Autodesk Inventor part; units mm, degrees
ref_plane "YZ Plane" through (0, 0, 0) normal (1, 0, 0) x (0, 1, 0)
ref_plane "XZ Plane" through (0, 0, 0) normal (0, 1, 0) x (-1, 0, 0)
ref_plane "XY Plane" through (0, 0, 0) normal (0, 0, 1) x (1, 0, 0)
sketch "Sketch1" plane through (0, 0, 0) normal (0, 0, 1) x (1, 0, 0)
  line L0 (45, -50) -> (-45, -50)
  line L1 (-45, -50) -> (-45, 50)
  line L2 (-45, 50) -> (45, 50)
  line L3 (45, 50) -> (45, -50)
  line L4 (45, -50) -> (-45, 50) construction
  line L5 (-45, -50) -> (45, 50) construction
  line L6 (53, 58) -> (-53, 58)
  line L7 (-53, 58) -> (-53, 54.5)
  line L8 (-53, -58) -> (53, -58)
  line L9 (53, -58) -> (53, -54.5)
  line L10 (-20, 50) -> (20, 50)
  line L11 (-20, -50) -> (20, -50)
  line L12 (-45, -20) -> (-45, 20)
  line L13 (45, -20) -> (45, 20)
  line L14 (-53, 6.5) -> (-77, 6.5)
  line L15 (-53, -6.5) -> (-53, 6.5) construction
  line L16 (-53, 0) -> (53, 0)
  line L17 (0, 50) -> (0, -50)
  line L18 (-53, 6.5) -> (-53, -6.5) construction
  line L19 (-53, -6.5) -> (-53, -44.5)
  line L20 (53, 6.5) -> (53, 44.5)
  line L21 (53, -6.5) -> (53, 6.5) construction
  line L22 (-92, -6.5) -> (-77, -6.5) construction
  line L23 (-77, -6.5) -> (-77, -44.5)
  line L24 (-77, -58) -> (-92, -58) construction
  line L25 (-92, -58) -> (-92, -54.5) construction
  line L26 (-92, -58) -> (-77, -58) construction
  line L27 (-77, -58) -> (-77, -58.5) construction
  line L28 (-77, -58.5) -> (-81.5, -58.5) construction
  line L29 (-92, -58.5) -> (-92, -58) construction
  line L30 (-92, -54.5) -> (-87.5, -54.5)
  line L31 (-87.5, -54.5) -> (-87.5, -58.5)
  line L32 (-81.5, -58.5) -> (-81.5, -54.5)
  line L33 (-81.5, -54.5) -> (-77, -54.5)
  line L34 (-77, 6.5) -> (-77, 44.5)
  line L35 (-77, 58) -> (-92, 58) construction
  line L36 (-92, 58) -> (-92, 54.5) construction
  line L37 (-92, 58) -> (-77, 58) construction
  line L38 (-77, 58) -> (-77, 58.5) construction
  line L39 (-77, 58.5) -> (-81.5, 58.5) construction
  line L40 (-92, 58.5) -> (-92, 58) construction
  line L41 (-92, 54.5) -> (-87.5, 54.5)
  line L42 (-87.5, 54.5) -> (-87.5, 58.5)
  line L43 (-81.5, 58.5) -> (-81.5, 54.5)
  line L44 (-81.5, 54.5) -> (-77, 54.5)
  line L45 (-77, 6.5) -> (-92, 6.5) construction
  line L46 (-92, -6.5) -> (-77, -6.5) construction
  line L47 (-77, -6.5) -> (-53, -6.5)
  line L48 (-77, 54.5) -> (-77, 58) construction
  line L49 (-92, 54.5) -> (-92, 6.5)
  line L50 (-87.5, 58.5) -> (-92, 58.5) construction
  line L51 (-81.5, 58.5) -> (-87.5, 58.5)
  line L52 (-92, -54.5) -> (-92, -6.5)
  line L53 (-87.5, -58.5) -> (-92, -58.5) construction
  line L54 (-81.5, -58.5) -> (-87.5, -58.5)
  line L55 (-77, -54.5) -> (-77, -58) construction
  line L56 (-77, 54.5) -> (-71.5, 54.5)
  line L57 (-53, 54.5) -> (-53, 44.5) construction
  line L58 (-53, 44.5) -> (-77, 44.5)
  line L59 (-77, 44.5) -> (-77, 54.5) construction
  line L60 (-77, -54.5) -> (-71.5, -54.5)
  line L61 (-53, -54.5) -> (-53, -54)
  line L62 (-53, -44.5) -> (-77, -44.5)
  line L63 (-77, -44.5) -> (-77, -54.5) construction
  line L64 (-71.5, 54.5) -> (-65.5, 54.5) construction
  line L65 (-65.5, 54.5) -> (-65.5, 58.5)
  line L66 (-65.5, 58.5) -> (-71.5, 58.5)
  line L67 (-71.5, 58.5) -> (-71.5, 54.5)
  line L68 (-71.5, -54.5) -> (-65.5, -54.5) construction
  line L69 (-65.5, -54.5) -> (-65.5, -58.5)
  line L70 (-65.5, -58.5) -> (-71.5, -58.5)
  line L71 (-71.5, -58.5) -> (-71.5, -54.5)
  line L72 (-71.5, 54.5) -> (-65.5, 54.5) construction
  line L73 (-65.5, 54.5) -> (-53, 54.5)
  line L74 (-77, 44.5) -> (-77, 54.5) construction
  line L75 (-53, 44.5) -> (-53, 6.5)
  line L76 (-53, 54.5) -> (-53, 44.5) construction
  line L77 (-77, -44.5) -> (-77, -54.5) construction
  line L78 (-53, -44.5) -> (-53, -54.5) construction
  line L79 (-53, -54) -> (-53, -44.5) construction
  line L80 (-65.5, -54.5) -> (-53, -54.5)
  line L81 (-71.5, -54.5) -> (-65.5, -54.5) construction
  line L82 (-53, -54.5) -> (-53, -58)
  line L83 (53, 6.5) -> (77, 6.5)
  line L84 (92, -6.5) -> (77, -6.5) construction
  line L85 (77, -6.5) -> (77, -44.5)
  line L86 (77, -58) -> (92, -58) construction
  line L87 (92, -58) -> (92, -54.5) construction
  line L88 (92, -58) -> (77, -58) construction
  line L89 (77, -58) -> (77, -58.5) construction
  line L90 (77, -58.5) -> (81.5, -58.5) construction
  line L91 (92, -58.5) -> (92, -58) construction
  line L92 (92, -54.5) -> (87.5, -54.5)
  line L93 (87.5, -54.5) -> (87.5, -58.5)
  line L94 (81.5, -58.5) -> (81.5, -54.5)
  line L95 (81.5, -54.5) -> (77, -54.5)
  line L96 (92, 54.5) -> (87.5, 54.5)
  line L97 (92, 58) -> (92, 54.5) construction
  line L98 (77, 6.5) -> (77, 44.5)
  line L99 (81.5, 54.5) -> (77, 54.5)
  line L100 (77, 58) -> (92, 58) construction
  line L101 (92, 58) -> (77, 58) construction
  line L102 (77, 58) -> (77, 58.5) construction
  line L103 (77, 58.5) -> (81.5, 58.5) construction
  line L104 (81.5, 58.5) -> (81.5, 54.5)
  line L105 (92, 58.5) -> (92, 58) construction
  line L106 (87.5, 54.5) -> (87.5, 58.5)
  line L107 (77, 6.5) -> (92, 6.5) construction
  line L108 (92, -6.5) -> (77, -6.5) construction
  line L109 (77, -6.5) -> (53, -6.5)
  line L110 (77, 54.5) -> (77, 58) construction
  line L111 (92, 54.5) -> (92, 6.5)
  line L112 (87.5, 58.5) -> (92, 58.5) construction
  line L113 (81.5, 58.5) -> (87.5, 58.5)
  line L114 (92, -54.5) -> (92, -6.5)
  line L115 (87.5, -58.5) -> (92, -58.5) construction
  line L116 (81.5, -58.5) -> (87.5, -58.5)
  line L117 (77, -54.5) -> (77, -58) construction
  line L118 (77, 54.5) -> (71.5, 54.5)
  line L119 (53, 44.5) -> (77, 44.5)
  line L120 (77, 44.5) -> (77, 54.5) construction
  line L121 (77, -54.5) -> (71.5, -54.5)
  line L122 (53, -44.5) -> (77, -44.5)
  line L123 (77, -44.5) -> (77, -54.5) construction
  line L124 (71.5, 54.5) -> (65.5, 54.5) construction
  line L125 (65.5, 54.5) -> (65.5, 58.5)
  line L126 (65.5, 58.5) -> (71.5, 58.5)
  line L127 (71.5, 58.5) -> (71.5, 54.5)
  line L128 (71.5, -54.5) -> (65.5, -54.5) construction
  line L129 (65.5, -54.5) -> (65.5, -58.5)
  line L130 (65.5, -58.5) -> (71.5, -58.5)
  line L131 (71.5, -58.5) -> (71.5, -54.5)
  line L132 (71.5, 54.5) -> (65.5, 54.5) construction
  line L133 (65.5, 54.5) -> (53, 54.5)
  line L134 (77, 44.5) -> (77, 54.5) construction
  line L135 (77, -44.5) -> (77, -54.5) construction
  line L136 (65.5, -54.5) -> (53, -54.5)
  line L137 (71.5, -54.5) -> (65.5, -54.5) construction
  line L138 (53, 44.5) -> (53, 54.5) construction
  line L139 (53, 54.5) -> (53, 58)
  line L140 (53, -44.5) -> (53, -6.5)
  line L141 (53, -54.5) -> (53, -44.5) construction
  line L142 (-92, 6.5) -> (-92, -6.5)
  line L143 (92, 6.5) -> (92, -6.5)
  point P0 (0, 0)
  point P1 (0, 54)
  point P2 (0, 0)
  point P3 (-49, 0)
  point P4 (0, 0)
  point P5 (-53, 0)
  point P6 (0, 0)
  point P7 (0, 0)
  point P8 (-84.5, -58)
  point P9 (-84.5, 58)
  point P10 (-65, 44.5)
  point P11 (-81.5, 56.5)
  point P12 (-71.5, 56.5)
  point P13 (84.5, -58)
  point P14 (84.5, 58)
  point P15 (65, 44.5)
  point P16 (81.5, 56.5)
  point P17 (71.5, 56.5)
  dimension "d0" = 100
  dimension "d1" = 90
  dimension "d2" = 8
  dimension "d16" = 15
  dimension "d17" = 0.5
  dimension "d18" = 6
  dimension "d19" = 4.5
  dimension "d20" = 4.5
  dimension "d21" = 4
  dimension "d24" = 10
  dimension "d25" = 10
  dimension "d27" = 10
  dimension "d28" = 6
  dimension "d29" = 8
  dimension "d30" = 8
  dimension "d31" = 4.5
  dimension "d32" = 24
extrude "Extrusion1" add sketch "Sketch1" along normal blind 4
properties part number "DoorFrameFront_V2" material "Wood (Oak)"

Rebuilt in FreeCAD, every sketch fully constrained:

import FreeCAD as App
import Part
import Sketcher

doc = App.newDocument("Part")
params = doc.addObject("Spreadsheet::Sheet", "Params")
for row, (alias, value) in enumerate([
    ("sketch1_width", "6 mm"),
    ("sketch1_width2", "10 mm"),
    ("sketch1_width3", "24 mm"),
    ("sketch1_width4", "90 mm"),
    ("sketch1_height", "4 mm"),
    ("pad1_length", "4 mm"),
], start=1):
    params.set(f"A{row}", alias)
    params.set(f"B{row}", "=" + value)
    params.setAlias(f"B{row}", alias)

body = doc.addObject("PartDesign::Body", "Body")

sketch1 = doc.addObject("Sketcher::SketchObject", "Sketch")
body.addObject(sketch1)
sketch1.AttachmentSupport = (doc.XY_Plane, [""])
sketch1.MapMode = "FlatFace"
sketch1.addGeometry(Part.LineSegment(App.Vector(53, 54.5, 0), App.Vector(53, 58, 0)), False)
sketch1.addGeometry(Part.LineSegment(App.Vector(53, 58, 0), App.Vector(-53, 58, 0)), False)
sketch1.addGeometry(Part.LineSegment(App.Vector(-53, 58, 0), App.Vector(-53, 54.5, 0)), False)
sketch1.addGeometry(Part.LineSegment(App.Vector(-53, 54.5, 0), App.Vector(-65.5, 54.5, 0)), False)
sketch1.addGeometry(Part.LineSegment(App.Vector(-65.5, 54.5, 0), App.Vector(-65.5, 58.5, 0)), False)
sketch1.addGeometry(Part.LineSegment(App.Vector(-65.5, 58.5, 0), App.Vector(-71.5, 58.5, 0)), False)
sketch1.addGeometry(Part.LineSegment(App.Vector(-71.5, 58.5, 0), App.Vector(-71.5, 54.5, 0)), False)
sketch1.addGeometry(Part.LineSegment(App.Vector(-71.5, 54.5, 0), App.Vector(-81.5, 54.5, 0)), False)
sketch1.addGeometry(Part.LineSegment(App.Vector(-81.5, 54.5, 0), App.Vector(-81.5, 58.5, 0)), False)
sketch1.addGeometry(Part.LineSegment(App.Vector(-81.5, 58.5, 0), App.Vector(-87.5, 58.5, 0)), False)
sketch1.addGeometry(Part.LineSegment(App.Vector(-87.5, 58.5, 0), App.Vector(-87.5, 54.5, 0)), False)
sketch1.addGeometry(Part.LineSegment(App.Vector(-87.5, 54.5, 0), App.Vector(-92, 54.5, 0)), False)
sketch1.addGeometry(Part.LineSegment(App.Vector(-92, 54.5, 0), App.Vector(-92, -54.5, 0)), False)
sketch1.addGeometry(Part.LineSegment(App.Vector(-92, -54.5, 0), App.Vector(-87.5, -54.5, 0)), False)
sketch1.addGeometry(Part.LineSegment(App.Vector(-87.5, -54.5, 0), App.Vector(-87.5, -58.5, 0)), False)
sketch1.addGeometry(Part.LineSegment(App.Vector(-87.5, -58.5, 0), App.Vector(-81.5, -58.5, 0)), False)
sketch1.addGeometry(Part.LineSegment(App.Vector(-81.5, -58.5, 0), App.Vector(-81.5, -54.5, 0)), False)
sketch1.addGeometry(Part.LineSegment(App.Vector(-81.5, -54.5, 0), App.Vector(-71.5, -54.5, 0)), False)
sketch1.addGeometry(Part.LineSegment(App.Vector(-71.5, -54.5, 0), App.Vector(-71.5, -58.5, 0)), False)
sketch1.addGeometry(Part.LineSegment(App.Vector(-71.5, -58.5, 0), App.Vector(-65.5, -58.5, 0)), False)
sketch1.addGeometry(Part.LineSegment(App.Vector(-65.5, -58.5, 0), App.Vector(-65.5, -54.5, 0)), False)
sketch1.addGeometry(Part.LineSegment(App.Vector(-65.5, -54.5, 0), App.Vector(-53, -54.5, 0)), False)
sketch1.addGeometry(Part.LineSegment(App.Vector(-53, -54.5, 0), App.Vector(-53, -58, 0)), False)
sketch1.addGeometry(Part.LineSegment(App.Vector(-53, -58, 0), App.Vector(53, -58, 0)), False)
sketch1.addGeometry(Part.LineSegment(App.Vector(53, -58, 0), App.Vector(53, -54.5, 0)), False)
sketch1.addGeometry(Part.LineSegment(App.Vector(53, -54.5, 0), App.Vector(65.5, -54.5, 0)), False)
sketch1.addGeometry(Part.LineSegment(App.Vector(65.5, -54.5, 0), App.Vector(65.5, -58.5, 0)), False)
sketch1.addGeometry(Part.LineSegment(App.Vector(65.5, -58.5, 0), App.Vector(71.5, -58.5, 0)), False)
sketch1.addGeometry(Part.LineSegment(App.Vector(71.5, -58.5, 0), App.Vector(71.5, -54.5, 0)), False)
sketch1.addGeometry(Part.LineSegment(App.Vector(71.5, -54.5, 0), App.Vector(81.5, -54.5, 0)), False)
sketch1.addGeometry(Part.LineSegment(App.Vector(81.5, -54.5, 0), App.Vector(81.5, -58.5, 0)), False)
sketch1.addGeometry(Part.LineSegment(App.Vector(81.5, -58.5, 0), App.Vector(87.5, -58.5, 0)), False)
sketch1.addGeometry(Part.LineSegment(App.Vector(87.5, -58.5, 0), App.Vector(87.5, -54.5, 0)), False)
sketch1.addGeometry(Part.LineSegment(App.Vector(87.5, -54.5, 0), App.Vector(92, -54.5, 0)), False)
sketch1.addGeometry(Part.LineSegment(App.Vector(92, -54.5, 0), App.Vector(92, 54.5, 0)), False)
sketch1.addGeometry(Part.LineSegment(App.Vector(92, 54.5, 0), App.Vector(87.5, 54.5, 0)), False)
sketch1.addGeometry(Part.LineSegment(App.Vector(87.5, 54.5, 0), App.Vector(87.5, 58.5, 0)), False)
sketch1.addGeometry(Part.LineSegment(App.Vector(87.5, 58.5, 0), App.Vector(81.5, 58.5, 0)), False)
sketch1.addGeometry(Part.LineSegment(App.Vector(81.5, 58.5, 0), App.Vector(81.5, 54.5, 0)), False)
sketch1.addGeometry(Part.LineSegment(App.Vector(81.5, 54.5, 0), App.Vector(71.5, 54.5, 0)), False)
sketch1.addGeometry(Part.LineSegment(App.Vector(71.5, 54.5, 0), App.Vector(71.5, 58.5, 0)), False)
sketch1.addGeometry(Part.LineSegment(App.Vector(71.5, 58.5, 0), App.Vector(65.5, 58.5, 0)), False)
sketch1.addGeometry(Part.LineSegment(App.Vector(65.5, 58.5, 0), App.Vector(65.5, 54.5, 0)), False)
sketch1.addGeometry(Part.LineSegment(App.Vector(65.5, 54.5, 0), App.Vector(53, 54.5, 0)), False)
sketch1.addGeometry(Part.LineSegment(App.Vector(-77, -6.5, 0), App.Vector(-53, -6.5, 0)), False)
sketch1.addGeometry(Part.LineSegment(App.Vector(-53, -6.5, 0), App.Vector(-53, -44.5, 0)), False)
sketch1.addGeometry(Part.LineSegment(App.Vector(-53, -44.5, 0), App.Vector(-77, -44.5, 0)), False)
sketch1.addGeometry(Part.LineSegment(App.Vector(-77, -44.5, 0), App.Vector(-77, -6.5, 0)), False)
sketch1.addGeometry(Part.LineSegment(App.Vector(53, -6.5, 0), App.Vector(77, -6.5, 0)), False)
sketch1.addGeometry(Part.LineSegment(App.Vector(77, -6.5, 0), App.Vector(77, -44.5, 0)), False)
sketch1.addGeometry(Part.LineSegment(App.Vector(77, -44.5, 0), App.Vector(53, -44.5, 0)), False)
sketch1.addGeometry(Part.LineSegment(App.Vector(53, -44.5, 0), App.Vector(53, -6.5, 0)), False)
sketch1.addGeometry(Part.LineSegment(App.Vector(-53, 44.5, 0), App.Vector(-53, 6.5, 0)), False)
sketch1.addGeometry(Part.LineSegment(App.Vector(-53, 6.5, 0), App.Vector(-77, 6.5, 0)), False)
sketch1.addGeometry(Part.LineSegment(App.Vector(-77, 6.5, 0), App.Vector(-77, 44.5, 0)), False)
sketch1.addGeometry(Part.LineSegment(App.Vector(-77, 44.5, 0), App.Vector(-53, 44.5, 0)), False)
sketch1.addGeometry(Part.LineSegment(App.Vector(45, 50, 0), App.Vector(45, -50, 0)), False)
sketch1.addGeometry(Part.LineSegment(App.Vector(45, -50, 0), App.Vector(-45, -50, 0)), False)
sketch1.addGeometry(Part.LineSegment(App.Vector(-45, -50, 0), App.Vector(-45, 50, 0)), False)
sketch1.addGeometry(Part.LineSegment(App.Vector(-45, 50, 0), App.Vector(45, 50, 0)), False)
sketch1.addGeometry(Part.LineSegment(App.Vector(77, 6.5, 0), App.Vector(53, 6.5, 0)), False)
sketch1.addGeometry(Part.LineSegment(App.Vector(53, 6.5, 0), App.Vector(53, 44.5, 0)), False)
sketch1.addGeometry(Part.LineSegment(App.Vector(53, 44.5, 0), App.Vector(77, 44.5, 0)), False)
sketch1.addGeometry(Part.LineSegment(App.Vector(77, 44.5, 0), App.Vector(77, 6.5, 0)), False)
sketch1.addConstraint(Sketcher.Constraint("Coincident", 0, 2, 1, 1))
sketch1.addConstraint(Sketcher.Constraint("Coincident", 1, 2, 2, 1))
sketch1.addConstraint(Sketcher.Constraint("Coincident", 2, 2, 3, 1))
sketch1.addConstraint(Sketcher.Constraint("Coincident", 3, 2, 4, 1))
sketch1.addConstraint(Sketcher.Constraint("Coincident", 4, 2, 5, 1))
sketch1.addConstraint(Sketcher.Constraint("Coincident", 5, 2, 6, 1))
sketch1.addConstraint(Sketcher.Constraint("Coincident", 6, 2, 7, 1))
sketch1.addConstraint(Sketcher.Constraint("Coincident", 7, 2, 8, 1))
sketch1.addConstraint(Sketcher.Constraint("Coincident", 8, 2, 9, 1))
sketch1.addConstraint(Sketcher.Constraint("Coincident", 9, 2, 10, 1))
sketch1.addConstraint(Sketcher.Constraint("Coincident", 10, 2, 11, 1))
sketch1.addConstraint(Sketcher.Constraint("Coincident", 11, 2, 12, 1))
sketch1.addConstraint(Sketcher.Constraint("Coincident", 12, 2, 13, 1))
sketch1.addConstraint(Sketcher.Constraint("Coincident", 13, 2, 14, 1))
sketch1.addConstraint(Sketcher.Constraint("Coincident", 14, 2, 15, 1))
sketch1.addConstraint(Sketcher.Constraint("Coincident", 15, 2, 16, 1))
sketch1.addConstraint(Sketcher.Constraint("Coincident", 16, 2, 17, 1))
sketch1.addConstraint(Sketcher.Constraint("Coincident", 17, 2, 18, 1))
sketch1.addConstraint(Sketcher.Constraint("Coincident", 18, 2, 19, 1))
sketch1.addConstraint(Sketcher.Constraint("Coincident", 19, 2, 20, 1))
sketch1.addConstraint(Sketcher.Constraint("Coincident", 20, 2, 21, 1))
sketch1.addConstraint(Sketcher.Constraint("Coincident", 21, 2, 22, 1))
sketch1.addConstraint(Sketcher.Constraint("Coincident", 22, 2, 23, 1))
sketch1.addConstraint(Sketcher.Constraint("Coincident", 23, 2, 24, 1))
sketch1.addConstraint(Sketcher.Constraint("Coincident", 24, 2, 25, 1))
sketch1.addConstraint(Sketcher.Constraint("Coincident", 25, 2, 26, 1))
sketch1.addConstraint(Sketcher.Constraint("Coincident", 26, 2, 27, 1))
sketch1.addConstraint(Sketcher.Constraint("Coincident", 27, 2, 28, 1))
sketch1.addConstraint(Sketcher.Constraint("Coincident", 28, 2, 29, 1))
sketch1.addConstraint(Sketcher.Constraint("Coincident", 29, 2, 30, 1))
sketch1.addConstraint(Sketcher.Constraint("Coincident", 30, 2, 31, 1))
sketch1.addConstraint(Sketcher.Constraint("Coincident", 31, 2, 32, 1))
sketch1.addConstraint(Sketcher.Constraint("Coincident", 32, 2, 33, 1))
sketch1.addConstraint(Sketcher.Constraint("Coincident", 33, 2, 34, 1))
sketch1.addConstraint(Sketcher.Constraint("Coincident", 34, 2, 35, 1))
sketch1.addConstraint(Sketcher.Constraint("Coincident", 35, 2, 36, 1))
sketch1.addConstraint(Sketcher.Constraint("Coincident", 36, 2, 37, 1))
sketch1.addConstraint(Sketcher.Constraint("Coincident", 37, 2, 38, 1))
sketch1.addConstraint(Sketcher.Constraint("Coincident", 38, 2, 39, 1))
sketch1.addConstraint(Sketcher.Constraint("Coincident", 39, 2, 40, 1))
sketch1.addConstraint(Sketcher.Constraint("Coincident", 40, 2, 41, 1))
sketch1.addConstraint(Sketcher.Constraint("Coincident", 41, 2, 42, 1))
sketch1.addConstraint(Sketcher.Constraint("Coincident", 42, 2, 43, 1))
sketch1.addConstraint(Sketcher.Constraint("Coincident", 43, 2, 0, 1))
sketch1.addConstraint(Sketcher.Constraint("Coincident", 44, 2, 45, 1))
sketch1.addConstraint(Sketcher.Constraint("Coincident", 45, 2, 46, 1))
sketch1.addConstraint(Sketcher.Constraint("Coincident", 46, 2, 47, 1))
sketch1.addConstraint(Sketcher.Constraint("Coincident", 47, 2, 44, 1))
sketch1.addConstraint(Sketcher.Constraint("Coincident", 48, 2, 49, 1))
sketch1.addConstraint(Sketcher.Constraint("Coincident", 49, 2, 50, 1))
sketch1.addConstraint(Sketcher.Constraint("Coincident", 50, 2, 51, 1))
sketch1.addConstraint(Sketcher.Constraint("Coincident", 51, 2, 48, 1))
sketch1.addConstraint(Sketcher.Constraint("Coincident", 52, 2, 53, 1))
sketch1.addConstraint(Sketcher.Constraint("Coincident", 53, 2, 54, 1))
sketch1.addConstraint(Sketcher.Constraint("Coincident", 54, 2, 55, 1))
sketch1.addConstraint(Sketcher.Constraint("Coincident", 55, 2, 52, 1))
sketch1.addConstraint(Sketcher.Constraint("Coincident", 56, 2, 57, 1))
sketch1.addConstraint(Sketcher.Constraint("Coincident", 57, 2, 58, 1))
sketch1.addConstraint(Sketcher.Constraint("Coincident", 58, 2, 59, 1))
sketch1.addConstraint(Sketcher.Constraint("Coincident", 59, 2, 56, 1))
sketch1.addConstraint(Sketcher.Constraint("Coincident", 60, 2, 61, 1))
sketch1.addConstraint(Sketcher.Constraint("Coincident", 61, 2, 62, 1))
sketch1.addConstraint(Sketcher.Constraint("Coincident", 62, 2, 63, 1))
sketch1.addConstraint(Sketcher.Constraint("Coincident", 63, 2, 60, 1))
sketch1.addConstraint(Sketcher.Constraint("Vertical", 0))
sketch1.addConstraint(Sketcher.Constraint("Horizontal", 1))
sketch1.addConstraint(Sketcher.Constraint("Vertical", 2))
sketch1.addConstraint(Sketcher.Constraint("Horizontal", 3))
sketch1.addConstraint(Sketcher.Constraint("Vertical", 4))
sketch1.addConstraint(Sketcher.Constraint("Horizontal", 5))
sketch1.addConstraint(Sketcher.Constraint("Vertical", 6))
sketch1.addConstraint(Sketcher.Constraint("Horizontal", 7))
sketch1.addConstraint(Sketcher.Constraint("Vertical", 8))
sketch1.addConstraint(Sketcher.Constraint("Horizontal", 9))
sketch1.addConstraint(Sketcher.Constraint("Vertical", 10))
sketch1.addConstraint(Sketcher.Constraint("Horizontal", 11))
sketch1.addConstraint(Sketcher.Constraint("Vertical", 12))
sketch1.addConstraint(Sketcher.Constraint("Horizontal", 13))
sketch1.addConstraint(Sketcher.Constraint("Vertical", 14))
sketch1.addConstraint(Sketcher.Constraint("Horizontal", 15))
sketch1.addConstraint(Sketcher.Constraint("Vertical", 16))
sketch1.addConstraint(Sketcher.Constraint("Horizontal", 17))
sketch1.addConstraint(Sketcher.Constraint("Vertical", 18))
sketch1.addConstraint(Sketcher.Constraint("Horizontal", 19))
sketch1.addConstraint(Sketcher.Constraint("Vertical", 20))
sketch1.addConstraint(Sketcher.Constraint("Horizontal", 21))
sketch1.addConstraint(Sketcher.Constraint("Vertical", 22))
sketch1.addConstraint(Sketcher.Constraint("Horizontal", 23))
sketch1.addConstraint(Sketcher.Constraint("Vertical", 24))
sketch1.addConstraint(Sketcher.Constraint("Horizontal", 25))
sketch1.addConstraint(Sketcher.Constraint("Vertical", 26))
sketch1.addConstraint(Sketcher.Constraint("Horizontal", 27))
sketch1.addConstraint(Sketcher.Constraint("Vertical", 28))
sketch1.addConstraint(Sketcher.Constraint("Horizontal", 29))
sketch1.addConstraint(Sketcher.Constraint("Vertical", 30))
sketch1.addConstraint(Sketcher.Constraint("Horizontal", 31))
sketch1.addConstraint(Sketcher.Constraint("Vertical", 32))
sketch1.addConstraint(Sketcher.Constraint("Horizontal", 33))
sketch1.addConstraint(Sketcher.Constraint("Vertical", 34))
sketch1.addConstraint(Sketcher.Constraint("Horizontal", 35))
sketch1.addConstraint(Sketcher.Constraint("Vertical", 36))
sketch1.addConstraint(Sketcher.Constraint("Horizontal", 37))
sketch1.addConstraint(Sketcher.Constraint("Vertical", 38))
sketch1.addConstraint(Sketcher.Constraint("Horizontal", 39))
sketch1.addConstraint(Sketcher.Constraint("Vertical", 40))
sketch1.addConstraint(Sketcher.Constraint("Horizontal", 41))
sketch1.addConstraint(Sketcher.Constraint("Vertical", 42))
sketch1.addConstraint(Sketcher.Constraint("Horizontal", 43))
sketch1.addConstraint(Sketcher.Constraint("Horizontal", 44))
sketch1.addConstraint(Sketcher.Constraint("Vertical", 45))
sketch1.addConstraint(Sketcher.Constraint("Horizontal", 46))
sketch1.addConstraint(Sketcher.Constraint("Vertical", 47))
sketch1.addConstraint(Sketcher.Constraint("Horizontal", 48))
sketch1.addConstraint(Sketcher.Constraint("Vertical", 49))
sketch1.addConstraint(Sketcher.Constraint("Horizontal", 50))
sketch1.addConstraint(Sketcher.Constraint("Vertical", 51))
sketch1.addConstraint(Sketcher.Constraint("Vertical", 52))
sketch1.addConstraint(Sketcher.Constraint("Horizontal", 53))
sketch1.addConstraint(Sketcher.Constraint("Vertical", 54))
sketch1.addConstraint(Sketcher.Constraint("Horizontal", 55))
sketch1.addConstraint(Sketcher.Constraint("Vertical", 56))
sketch1.addConstraint(Sketcher.Constraint("Horizontal", 57))
sketch1.addConstraint(Sketcher.Constraint("Vertical", 58))
sketch1.addConstraint(Sketcher.Constraint("Horizontal", 59))
sketch1.addConstraint(Sketcher.Constraint("Horizontal", 60))
sketch1.addConstraint(Sketcher.Constraint("Vertical", 61))
sketch1.addConstraint(Sketcher.Constraint("Horizontal", 62))
sketch1.addConstraint(Sketcher.Constraint("Vertical", 63))
sketch1.addConstraint(Sketcher.Constraint("Symmetric", 0, 2, 22, 2, -1, 1))
sketch1.addConstraint(Sketcher.Constraint("Symmetric", 2, 2, 24, 2, -1, 1))
sketch1.addConstraint(Sketcher.Constraint("Symmetric", 4, 2, 26, 2, -1, 1))
sketch1.addConstraint(Sketcher.Constraint("Symmetric", 6, 2, 28, 2, -1, 1))
sketch1.addConstraint(Sketcher.Constraint("Symmetric", 8, 2, 30, 2, -1, 1))
sketch1.addConstraint(Sketcher.Constraint("Symmetric", 10, 2, 32, 2, -1, 1))
sketch1.addConstraint(Sketcher.Constraint("Symmetric", 12, 2, 34, 2, -1, 1))
sketch1.addConstraint(Sketcher.Constraint("Symmetric", 14, 2, 36, 2, -1, 1))
sketch1.addConstraint(Sketcher.Constraint("Symmetric", 16, 2, 38, 2, -1, 1))
sketch1.addConstraint(Sketcher.Constraint("Symmetric", 18, 2, 40, 2, -1, 1))
sketch1.addConstraint(Sketcher.Constraint("Symmetric", 20, 2, 42, 2, -1, 1))
sketch1.addConstraint(Sketcher.Constraint("Symmetric", 51, 2, 52, 2, -1, 1))
sketch1.addConstraint(Sketcher.Constraint("Symmetric", 49, 2, 54, 2, -1, 1))
sketch1.addConstraint(Sketcher.Constraint("Symmetric", 56, 2, 58, 2, -1, 1))
sketch1.addConstraint(Sketcher.Constraint("Symmetric", 44, 2, 60, 2, -1, 1))
sketch1.addConstraint(Sketcher.Constraint("Symmetric", 46, 2, 62, 2, -1, 1))
sketch1.addConstraint(Sketcher.Constraint("Symmetric", 21, 2, 24, 2, -2))
sketch1.addConstraint(Sketcher.Constraint("Symmetric", 19, 2, 26, 2, -2))
sketch1.addConstraint(Sketcher.Constraint("Symmetric", 17, 2, 28, 2, -2))
sketch1.addConstraint(Sketcher.Constraint("Symmetric", 15, 2, 30, 2, -2))
sketch1.addConstraint(Sketcher.Constraint("Symmetric", 13, 2, 32, 2, -2))
sketch1.addConstraint(Sketcher.Constraint("Symmetric", 47, 2, 48, 2, -2))
sketch1.addConstraint(Sketcher.Constraint("Symmetric", 45, 2, 50, 2, -2))
sketch1.addConstraint(Sketcher.Constraint("Horizontal", 3, 2, 6, 2))
sketch1.addConstraint(Sketcher.Constraint("Horizontal", 5, 2, 8, 2))
sketch1.addConstraint(Sketcher.Constraint("Horizontal", 7, 2, 10, 2))
sketch1.addConstraint(Sketcher.Constraint("Vertical", 22, 2, 44, 2))
sketch1.addConstraint(Sketcher.Constraint("Equal", 5, 9))
sketch1.addConstraint(Sketcher.Constraint("DistanceX", 5, 2, 5, 1, 6.0))
sketch1.addConstraint(Sketcher.Constraint("DistanceX", 7, 2, 7, 1, 10.0))
sketch1.addConstraint(Sketcher.Constraint("DistanceX", 44, 1, 44, 2, 24.0))
sketch1.addConstraint(Sketcher.Constraint("DistanceX", 57, 2, 57, 1, 90.0))
sketch1.addConstraint(Sketcher.Constraint("DistanceY", 4, 1, 4, 2, 4.0))
sketch1.addConstraint(Sketcher.Constraint("DistanceY", 56, 2, 56, 1, 100.0))
sketch1.addConstraint(Sketcher.Constraint("DistanceX", 11, 2, 11, 1, 4.5))
sketch1.addConstraint(Sketcher.Constraint("DistanceX", 1, 2, 1, 1, 106.0))
sketch1.addConstraint(Sketcher.Constraint("DistanceY", 12, 2, 12, 1, 109.0))
sketch1.addConstraint(Sketcher.Constraint("DistanceY", 45, 2, 45, 1, 38.0))
sketch1.addConstraint(Sketcher.Constraint("DistanceX", 3, 2, 3, 1, 12.5))
sketch1.addConstraint(Sketcher.Constraint("DistanceY", 0, 1, 0, 2, 3.5))
sketch1.addConstraint(Sketcher.Constraint("DistanceY", 44, 2, -1, 1, 6.5))
sketch1.setExpression("Constraints[156]", "Params.sketch1_width")
sketch1.setExpression("Constraints[157]", "Params.sketch1_width2")
sketch1.setExpression("Constraints[158]", "Params.sketch1_width3")
sketch1.setExpression("Constraints[159]", "Params.sketch1_width4")
sketch1.setExpression("Constraints[160]", "Params.sketch1_height")
pad1 = doc.addObject("PartDesign::Pad", "Pad")
body.addObject(pad1)
pad1.Profile = sketch1
pad1.setExpression("Length", "Params.pad1_length")

doc.recompute()
